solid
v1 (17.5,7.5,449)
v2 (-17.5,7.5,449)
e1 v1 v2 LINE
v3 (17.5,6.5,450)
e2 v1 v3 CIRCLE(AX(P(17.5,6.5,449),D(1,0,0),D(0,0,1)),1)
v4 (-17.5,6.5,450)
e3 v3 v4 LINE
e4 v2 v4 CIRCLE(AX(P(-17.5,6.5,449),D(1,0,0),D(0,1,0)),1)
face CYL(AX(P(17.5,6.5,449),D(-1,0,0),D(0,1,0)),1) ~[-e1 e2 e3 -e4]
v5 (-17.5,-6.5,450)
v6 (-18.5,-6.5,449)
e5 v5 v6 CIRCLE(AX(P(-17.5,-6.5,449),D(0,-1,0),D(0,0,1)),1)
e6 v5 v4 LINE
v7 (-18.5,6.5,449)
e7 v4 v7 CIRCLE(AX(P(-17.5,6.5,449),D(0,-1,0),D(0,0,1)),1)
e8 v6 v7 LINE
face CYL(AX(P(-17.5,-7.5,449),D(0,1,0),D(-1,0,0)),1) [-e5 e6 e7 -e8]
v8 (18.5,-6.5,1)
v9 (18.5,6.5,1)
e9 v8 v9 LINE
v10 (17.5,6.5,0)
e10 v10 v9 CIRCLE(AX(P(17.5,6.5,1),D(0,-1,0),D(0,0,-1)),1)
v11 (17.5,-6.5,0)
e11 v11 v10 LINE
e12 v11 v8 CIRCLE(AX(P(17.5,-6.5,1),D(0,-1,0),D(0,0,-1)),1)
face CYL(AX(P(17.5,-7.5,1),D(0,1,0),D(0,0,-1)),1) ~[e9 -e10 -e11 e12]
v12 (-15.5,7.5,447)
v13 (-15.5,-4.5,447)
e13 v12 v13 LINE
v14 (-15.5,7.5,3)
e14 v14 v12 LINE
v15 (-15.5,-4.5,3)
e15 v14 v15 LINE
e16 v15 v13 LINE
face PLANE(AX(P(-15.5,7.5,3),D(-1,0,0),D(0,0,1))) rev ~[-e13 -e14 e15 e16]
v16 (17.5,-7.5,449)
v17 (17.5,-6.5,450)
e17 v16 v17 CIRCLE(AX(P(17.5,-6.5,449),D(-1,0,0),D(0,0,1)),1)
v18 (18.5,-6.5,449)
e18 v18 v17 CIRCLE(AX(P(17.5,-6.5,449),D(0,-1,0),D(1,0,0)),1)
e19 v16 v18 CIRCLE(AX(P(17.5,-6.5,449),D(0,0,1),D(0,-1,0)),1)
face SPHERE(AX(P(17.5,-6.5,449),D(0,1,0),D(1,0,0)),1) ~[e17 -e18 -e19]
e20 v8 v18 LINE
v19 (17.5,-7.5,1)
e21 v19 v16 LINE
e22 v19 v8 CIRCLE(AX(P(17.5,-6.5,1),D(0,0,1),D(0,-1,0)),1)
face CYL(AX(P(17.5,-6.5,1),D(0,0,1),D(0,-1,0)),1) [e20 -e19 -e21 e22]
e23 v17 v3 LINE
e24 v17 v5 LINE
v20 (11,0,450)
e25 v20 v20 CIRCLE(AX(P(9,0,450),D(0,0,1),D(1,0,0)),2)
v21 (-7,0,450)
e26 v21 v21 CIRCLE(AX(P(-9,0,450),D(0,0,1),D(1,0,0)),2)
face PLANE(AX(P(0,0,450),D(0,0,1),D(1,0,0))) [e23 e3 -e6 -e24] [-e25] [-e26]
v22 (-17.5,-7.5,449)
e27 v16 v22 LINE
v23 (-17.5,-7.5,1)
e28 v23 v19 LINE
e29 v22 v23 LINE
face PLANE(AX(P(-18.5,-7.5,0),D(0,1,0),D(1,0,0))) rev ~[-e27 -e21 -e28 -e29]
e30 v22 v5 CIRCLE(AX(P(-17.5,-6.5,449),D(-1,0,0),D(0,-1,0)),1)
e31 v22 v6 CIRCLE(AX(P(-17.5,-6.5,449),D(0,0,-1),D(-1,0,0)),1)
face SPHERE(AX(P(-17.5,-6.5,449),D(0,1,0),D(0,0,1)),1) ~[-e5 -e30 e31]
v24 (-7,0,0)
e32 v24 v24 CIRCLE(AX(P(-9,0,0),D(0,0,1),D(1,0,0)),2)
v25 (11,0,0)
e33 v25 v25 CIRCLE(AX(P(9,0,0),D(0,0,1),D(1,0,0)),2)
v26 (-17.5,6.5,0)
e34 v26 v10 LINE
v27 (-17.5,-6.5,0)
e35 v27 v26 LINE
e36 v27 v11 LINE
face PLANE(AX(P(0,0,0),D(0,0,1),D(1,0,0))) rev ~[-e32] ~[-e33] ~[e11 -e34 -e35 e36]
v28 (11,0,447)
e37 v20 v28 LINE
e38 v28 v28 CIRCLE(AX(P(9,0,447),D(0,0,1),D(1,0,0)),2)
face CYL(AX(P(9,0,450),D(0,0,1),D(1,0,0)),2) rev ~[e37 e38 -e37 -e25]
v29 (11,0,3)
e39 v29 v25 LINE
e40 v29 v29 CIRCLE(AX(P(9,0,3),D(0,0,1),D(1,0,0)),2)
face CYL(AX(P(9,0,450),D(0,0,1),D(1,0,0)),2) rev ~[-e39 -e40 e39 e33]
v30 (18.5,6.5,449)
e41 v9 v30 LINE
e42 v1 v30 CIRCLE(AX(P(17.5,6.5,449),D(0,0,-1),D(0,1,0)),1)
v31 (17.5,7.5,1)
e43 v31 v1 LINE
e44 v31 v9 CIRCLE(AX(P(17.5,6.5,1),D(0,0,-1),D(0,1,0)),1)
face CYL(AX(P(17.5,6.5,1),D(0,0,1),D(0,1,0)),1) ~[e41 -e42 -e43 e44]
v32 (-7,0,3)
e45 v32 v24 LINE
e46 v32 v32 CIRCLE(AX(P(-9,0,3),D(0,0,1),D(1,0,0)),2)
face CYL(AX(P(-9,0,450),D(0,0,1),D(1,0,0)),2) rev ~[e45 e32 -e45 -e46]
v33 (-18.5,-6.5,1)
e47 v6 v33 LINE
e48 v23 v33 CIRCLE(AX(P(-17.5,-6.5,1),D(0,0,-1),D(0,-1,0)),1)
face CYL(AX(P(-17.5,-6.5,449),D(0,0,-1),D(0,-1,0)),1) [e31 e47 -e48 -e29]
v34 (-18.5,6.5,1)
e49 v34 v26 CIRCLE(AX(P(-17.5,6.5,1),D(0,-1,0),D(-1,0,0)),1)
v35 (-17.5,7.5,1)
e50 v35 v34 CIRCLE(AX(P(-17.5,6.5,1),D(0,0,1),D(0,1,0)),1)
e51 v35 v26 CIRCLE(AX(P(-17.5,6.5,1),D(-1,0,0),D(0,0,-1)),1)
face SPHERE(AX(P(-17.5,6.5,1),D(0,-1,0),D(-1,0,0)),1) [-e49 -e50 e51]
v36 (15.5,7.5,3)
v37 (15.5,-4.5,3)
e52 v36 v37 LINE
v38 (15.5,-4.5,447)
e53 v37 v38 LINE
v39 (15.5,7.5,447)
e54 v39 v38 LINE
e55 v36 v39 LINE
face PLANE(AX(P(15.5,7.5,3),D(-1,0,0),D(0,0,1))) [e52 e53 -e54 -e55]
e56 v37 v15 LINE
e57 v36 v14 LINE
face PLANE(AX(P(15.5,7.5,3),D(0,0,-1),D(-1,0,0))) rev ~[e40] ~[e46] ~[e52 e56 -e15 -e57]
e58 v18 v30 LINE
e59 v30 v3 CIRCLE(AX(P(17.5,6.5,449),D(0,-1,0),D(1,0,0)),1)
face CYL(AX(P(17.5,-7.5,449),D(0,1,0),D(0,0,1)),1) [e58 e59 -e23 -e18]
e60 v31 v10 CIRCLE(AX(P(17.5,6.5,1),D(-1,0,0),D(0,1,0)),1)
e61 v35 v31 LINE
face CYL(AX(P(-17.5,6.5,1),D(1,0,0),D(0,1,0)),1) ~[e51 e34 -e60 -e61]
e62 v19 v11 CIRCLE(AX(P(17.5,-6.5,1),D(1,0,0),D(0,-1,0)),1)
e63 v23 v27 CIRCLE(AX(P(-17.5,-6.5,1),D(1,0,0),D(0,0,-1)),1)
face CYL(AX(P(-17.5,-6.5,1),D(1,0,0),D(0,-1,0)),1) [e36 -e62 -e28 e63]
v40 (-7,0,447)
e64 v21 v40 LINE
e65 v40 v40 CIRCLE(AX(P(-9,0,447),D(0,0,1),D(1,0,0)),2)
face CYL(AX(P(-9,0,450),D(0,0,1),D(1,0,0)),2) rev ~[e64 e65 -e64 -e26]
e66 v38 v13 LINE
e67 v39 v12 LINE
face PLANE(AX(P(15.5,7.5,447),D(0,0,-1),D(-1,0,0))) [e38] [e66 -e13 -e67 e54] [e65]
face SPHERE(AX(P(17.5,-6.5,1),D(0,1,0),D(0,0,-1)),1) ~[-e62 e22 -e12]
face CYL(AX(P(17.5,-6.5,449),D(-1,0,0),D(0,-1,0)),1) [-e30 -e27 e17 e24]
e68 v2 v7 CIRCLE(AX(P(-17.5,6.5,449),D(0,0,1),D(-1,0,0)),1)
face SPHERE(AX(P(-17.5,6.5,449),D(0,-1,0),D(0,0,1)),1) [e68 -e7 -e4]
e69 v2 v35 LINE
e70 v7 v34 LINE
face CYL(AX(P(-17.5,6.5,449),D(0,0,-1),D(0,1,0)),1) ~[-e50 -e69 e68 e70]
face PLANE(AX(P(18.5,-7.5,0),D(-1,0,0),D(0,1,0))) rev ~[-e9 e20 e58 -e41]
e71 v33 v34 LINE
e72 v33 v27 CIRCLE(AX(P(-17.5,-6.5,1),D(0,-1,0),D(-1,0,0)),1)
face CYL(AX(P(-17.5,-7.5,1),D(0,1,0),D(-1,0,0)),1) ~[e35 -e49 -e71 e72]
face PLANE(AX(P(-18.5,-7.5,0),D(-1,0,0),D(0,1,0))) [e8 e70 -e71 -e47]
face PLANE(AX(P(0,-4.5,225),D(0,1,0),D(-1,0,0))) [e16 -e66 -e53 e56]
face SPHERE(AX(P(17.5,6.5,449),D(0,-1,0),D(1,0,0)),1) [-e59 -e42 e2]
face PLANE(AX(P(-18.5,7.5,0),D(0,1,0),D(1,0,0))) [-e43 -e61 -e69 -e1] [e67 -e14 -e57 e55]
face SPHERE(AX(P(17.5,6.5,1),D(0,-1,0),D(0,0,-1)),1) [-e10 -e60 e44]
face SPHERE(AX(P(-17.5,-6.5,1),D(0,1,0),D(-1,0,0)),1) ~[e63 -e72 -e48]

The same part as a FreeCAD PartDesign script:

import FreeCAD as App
import Part
import Sketcher
from FreeCAD import Vector


def edges_at(feature, points):
    """Names of the edges that pass closest to the given points."""
    edges = feature.Shape.Edges
    near = lambda p: min(range(len(edges)), key=lambda i: edges[i].distToShape(Part.Vertex(*p))[0])
    return sorted({f"Edge{near(p) + 1}" for p in points})


def add_polygon(sketch, points):
    """Adds a closed chain of lines whose ends are joined by coincident constraints."""
    first, n = sketch.GeometryCount, len(points)
    for a, b in zip(points, points[1:] + points[:1]):
        sketch.addGeometry(Part.LineSegment(App.Vector(*a, 0), App.Vector(*b, 0)), False)
    for i in range(n):
        sketch.addConstraint(Sketcher.Constraint("Coincident", first + i, 2, first + (i + 1) % n, 1))

doc = App.newDocument("Part")
body = doc.addObject("PartDesign::Body", "Body")

sketch1 = body.newObject("Sketcher::SketchObject", "Sketch")
sketch1.AttachmentSupport = (doc.getObject("XY_Plane"), [""])
sketch1.MapMode = "FlatFace"
add_polygon(sketch1, [(-18, 8), (-18, -8), (18, -8), (18, 8)])
sketch1.addConstraint(Sketcher.Constraint("Vertical", 0))
sketch1.addConstraint(Sketcher.Constraint("Horizontal", 1))
sketch1.addConstraint(Sketcher.Constraint("Vertical", 2))
sketch1.addConstraint(Sketcher.Constraint("Horizontal", 3))
sketch1.addConstraint(Sketcher.Constraint("Symmetric", 0, 2, 2, 2, -1, 1))
sketch1.addConstraint(Sketcher.Constraint("DistanceX", 1, 1, 1, 2, 37.0))
sketch1.addConstraint(Sketcher.Constraint("DistanceY", 0, 2, 0, 1, 15.0))
pad1 = body.newObject("PartDesign::Pad", "Pad")
pad1.Profile = sketch1
pad1.Length = 450

sketch2 = body.newObject("Sketcher::SketchObject", "Sketch001")
sketch2.AttachmentSupport = (doc.getObject("XZ_Plane"), [""])
sketch2.MapMode = "FlatFace"
sketch2.AttachmentOffset = App.Placement(Vector(0, 0, -7.5), App.Rotation())
add_polygon(sketch2, [(16, 447), (16, 3), (-16, 3), (-16, 447)])
sketch2.addConstraint(Sketcher.Constraint("Vertical", 0))
sketch2.addConstraint(Sketcher.Constraint("Horizontal", 1))
sketch2.addConstraint(Sketcher.Constraint("Vertical", 2))
sketch2.addConstraint(Sketcher.Constraint("Horizontal", 3))
sketch2.addConstraint(Sketcher.Constraint("DistanceX", 1, 2, 1, 1, 31.0))
sketch2.addConstraint(Sketcher.Constraint("DistanceY", 0, 2, 0, 1, 444.0))
sketch2.addConstraint(Sketcher.Constraint("DistanceY", -1, 1, 0, 2, 3.0))
sketch2.addConstraint(Sketcher.Constraint("DistanceX", -1, 1, 0, 2, 15.5))
pocket1 = body.newObject("PartDesign::Pocket", "Pocket")
pocket1.Profile = sketch2
pocket1.Length = 12
pocket1.Reversed = True

sketch3 = body.newObject("Sketcher::SketchObject", "Sketch002")
sketch3.AttachmentSupport = (doc.getObject("XY_Plane"), [""])
sketch3.MapMode = "FlatFace"
sketch3.AttachmentOffset = App.Placement(Vector(0, 0, 450), App.Rotation())
sketch3.addGeometry(Part.Circle(Vector(9, 0, 0), Vector(0, 0, 1), 2), False)
sketch3.addGeometry(Part.Circle(Vector(-9, 0, 0), Vector(0, 0, 1), 2), False)
sketch3.addConstraint(Sketcher.Constraint("Equal", 0, 1))
sketch3.addConstraint(Sketcher.Constraint("Symmetric", 0, 3, 1, 3, -1, 1))
sketch3.addConstraint(Sketcher.Constraint("PointOnObject", 0, 3, -1))
sketch3.addConstraint(Sketcher.Constraint("Diameter", 0, 4.0))
sketch3.addConstraint(Sketcher.Constraint("DistanceX", -1, 1, 0, 3, 9.0))
pocket2 = body.newObject("PartDesign::Pocket", "Pocket001")
pocket2.Profile = sketch3
pocket2.Type = "ThroughAll"
doc.recompute()

fillet = body.newObject("PartDesign::Fillet", "Fillet")
fillet.Base = (pocket2, edges_at(pocket2, [
    (-18.5, 0, 450),
    (18.5, 0, 450),
    (-18.5, 0, 0),
    (18.5, 0, 0),
]))
fillet.Radius = 1
doc.recompute()

fillet2 = body.newObject("PartDesign::Fillet", "Fillet001")
fillet2.Base = (fillet, edges_at(fillet, [(18.5, -7.5, 225), (18.5, 7.5, 225)]))
fillet2.Radius = 1

doc.recompute()
